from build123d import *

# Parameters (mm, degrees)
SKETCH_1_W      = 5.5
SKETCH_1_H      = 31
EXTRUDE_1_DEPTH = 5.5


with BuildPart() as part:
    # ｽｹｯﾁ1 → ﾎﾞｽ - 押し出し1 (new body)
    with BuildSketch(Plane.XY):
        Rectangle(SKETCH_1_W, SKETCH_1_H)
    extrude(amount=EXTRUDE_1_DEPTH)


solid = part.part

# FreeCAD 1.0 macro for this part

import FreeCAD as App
import Part
import Sketcher
from FreeCAD import Vector


def add_polygon(sketch, points):
    """Adds a closed chain of lines whose ends are joined by coincident constraints."""
    first, n = sketch.GeometryCount, len(points)
    for a, b in zip(points, points[1:] + points[:1]):
        sketch.addGeometry(Part.LineSegment(App.Vector(*a, 0), App.Vector(*b, 0)), False)
    for i in range(n):
        sketch.addConstraint(Sketcher.Constraint("Coincident", first + i, 2, first + (i + 1) % n, 1))

doc = App.newDocument("Part")
body = doc.addObject("PartDesign::Body", "Body")

# Sketch on XY plane
sketch1 = body.newObject("Sketcher::SketchObject", "Sketch")
sketch1.AttachmentSupport = (doc.getObject("XY_Plane"), [""])
sketch1.MapMode = "FlatFace"
add_polygon(sketch1, [(-2.75, 15.5), (-2.75, -15.5), (2.75, -15.5), (2.75, 15.5)])  # lines 0-3
sketch1.addConstraint(Sketcher.Constraint("Vertical", 0))
sketch1.addConstraint(Sketcher.Constraint("Horizontal", 1))
sketch1.addConstraint(Sketcher.Constraint("Vertical", 2))
sketch1.addConstraint(Sketcher.Constraint("Horizontal", 3))
sketch1.addConstraint(Sketcher.Constraint("Symmetric", 0, 2, 2, 2, -1, 1))
sketch1.addConstraint(Sketcher.Constraint("DistanceY", 0, 2, 0, 1, 31.0))
sketch1.addConstraint(Sketcher.Constraint("DistanceX", 1, 1, 1, 2, 5.5))
pad1 = body.newObject("PartDesign::Pad", "Pad")
pad1.Profile = sketch1
pad1.Length = 5.5

doc.recompute()
